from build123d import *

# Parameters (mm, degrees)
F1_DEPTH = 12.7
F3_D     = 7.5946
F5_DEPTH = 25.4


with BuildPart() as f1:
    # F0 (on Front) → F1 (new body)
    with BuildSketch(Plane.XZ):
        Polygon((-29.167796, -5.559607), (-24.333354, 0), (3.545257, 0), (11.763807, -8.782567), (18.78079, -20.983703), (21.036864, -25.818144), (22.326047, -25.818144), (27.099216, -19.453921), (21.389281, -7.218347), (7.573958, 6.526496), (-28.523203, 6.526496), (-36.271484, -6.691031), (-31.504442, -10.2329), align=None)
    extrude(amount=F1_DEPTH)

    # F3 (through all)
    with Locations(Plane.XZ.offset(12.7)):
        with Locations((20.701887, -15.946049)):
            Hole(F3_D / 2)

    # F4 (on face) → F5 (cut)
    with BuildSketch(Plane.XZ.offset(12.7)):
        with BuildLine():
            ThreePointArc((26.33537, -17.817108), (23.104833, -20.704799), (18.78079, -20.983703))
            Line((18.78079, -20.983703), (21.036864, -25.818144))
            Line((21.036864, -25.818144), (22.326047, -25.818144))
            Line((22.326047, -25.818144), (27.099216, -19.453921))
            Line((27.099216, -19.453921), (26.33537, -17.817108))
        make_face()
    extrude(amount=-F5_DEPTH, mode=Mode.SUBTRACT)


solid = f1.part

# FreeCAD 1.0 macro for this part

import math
import FreeCAD as App
import Part
import Sketcher

V = App.Vector
Q = App.Units.Quantity

doc = App.newDocument("Part")
params = doc.addObject("Spreadsheet::Sheet", "Params")
for row, (alias, value) in enumerate([
    ("pad1_length", "0.5 in"),
    ("sketch2_diameter", "0.299 in"),
    ("hole_diameter", "0.299 in"),
    ("pocket1_length", "1 in"),
], start=1):
    params.set(f"A{row}", alias)
    params.set(f"B{row}", "=" + value)
    params.setAlias(f"B{row}", alias)

body = doc.addObject("PartDesign::Body", "Body")

# Sketch on XZ plane
sketch1 = body.newObject("Sketcher::SketchObject", "Sketch")
sketch1.AttachmentSupport = (doc.getObject("XZ_Plane"), [""])
sketch1.MapMode = "FlatFace"
sketch1.addGeometry([
    Part.LineSegment(V(-29.167796, -5.559607, 0), V(-24.333354, 0, 0)),  # 0
    Part.LineSegment(V(-24.333354, 0, 0), V(3.545257, 0, 0)),  # 1
    Part.LineSegment(V(3.545257, 0, 0), V(11.763807, -8.782567, 0)),  # 2
    Part.LineSegment(V(11.763807, -8.782567, 0), V(18.78079, -20.983703, 0)),  # 3
    Part.LineSegment(V(18.78079, -20.983703, 0), V(21.036864, -25.818144, 0)),  # 4
    Part.LineSegment(V(21.036864, -25.818144, 0), V(22.326047, -25.818144, 0)),  # 5
    Part.LineSegment(V(22.326047, -25.818144, 0), V(27.099216, -19.453921, 0)),  # 6
    Part.LineSegment(V(27.099216, -19.453921, 0), V(21.389281, -7.218347, 0)),  # 7
    Part.LineSegment(V(21.389281, -7.218347, 0), V(7.573958, 6.526496, 0)),  # 8
    Part.LineSegment(V(7.573958, 6.526496, 0), V(-28.523203, 6.526496, 0)),  # 9
    Part.LineSegment(V(-28.523203, 6.526496, 0), V(-36.271484, -6.691031, 0)),  # 10
    Part.LineSegment(V(-36.271484, -6.691031, 0), V(-31.504442, -10.2329, 0)),  # 11
    Part.LineSegment(V(-31.504442, -10.2329, 0), V(-29.167796, -5.559607, 0)),  # 12
], False)
sketch1.addConstraint([
    Sketcher.Constraint("Coincident", 0, 2, 1, 1),
    Sketcher.Constraint("Coincident", 1, 2, 2, 1),
    Sketcher.Constraint("Coincident", 2, 2, 3, 1),
    Sketcher.Constraint("Coincident", 3, 2, 4, 1),
    Sketcher.Constraint("Coincident", 4, 2, 5, 1),
    Sketcher.Constraint("Coincident", 5, 2, 6, 1),
    Sketcher.Constraint("Coincident", 6, 2, 7, 1),
    Sketcher.Constraint("Coincident", 7, 2, 8, 1),
    Sketcher.Constraint("Coincident", 8, 2, 9, 1),
    Sketcher.Constraint("Coincident", 9, 2, 10, 1),
    Sketcher.Constraint("Coincident", 10, 2, 11, 1),
    Sketcher.Constraint("Coincident", 11, 2, 12, 1),
    Sketcher.Constraint("Coincident", 12, 2, 0, 1),
    Sketcher.Constraint("Horizontal", 1),
    Sketcher.Constraint("Horizontal", 5),
    Sketcher.Constraint("Horizontal", 9),
    Sketcher.Constraint("PointOnObject", 0, 2, -1),
    Sketcher.Constraint("Parallel", 4, 7),
    Sketcher.Constraint("Distance", 6, Q("0.3132 in")),
    Sketcher.Constraint("Distance", 12, Q("5.2249 mm")),
    Sketcher.Constraint("DistanceX", 1, 1, 1, 2, Q("27.878611 mm")),
    Sketcher.Constraint("DistanceX", 9, 2, 9, 1, Q("36.097161 mm")),
    Sketcher.Constraint("DistanceY", 11, 2, -1, 1, Q("10.2329 mm")),
    Sketcher.Constraint("DistanceX", 0, 2, 5, 2, Q("46.659401 mm")),
    Sketcher.Constraint("DistanceX", 1, 2, 8, 2, Q("4.028701 mm")),
    Sketcher.Constraint("DistanceY", 3, 2, 8, 2, Q("27.510199 mm")),
    Sketcher.Constraint("DistanceX", 11, 2, 1, 2, Q("35.049699 mm")),
    Sketcher.Constraint("Distance", 0, Q("7.367568 mm")),
    Sketcher.Constraint("Distance", 2, Q("12.028219 mm")),
    Sketcher.Constraint("Distance", 4, Q("5.33495 mm")),
    Sketcher.Constraint("Distance", 7, Q("13.502319 mm")),
    Sketcher.Constraint("Distance", 10, Q("15.321191 mm")),
    Sketcher.Constraint("DistanceX", 5, 1, 5, 2, Q("1.289183 mm")),
    Sketcher.Constraint("DistanceX", -1, 1, 3, 2, Q("18.78079 mm")),
    Sketcher.Constraint("DistanceY", 6, 2, -1, 1, Q("19.453921 mm")),
    Sketcher.Constraint("DistanceX", -1, 1, 7, 2, Q("21.389281 mm")),
    Sketcher.Constraint("DistanceX", -1, 1, 8, 2, Q("7.573958 mm")),
    Sketcher.Constraint("DistanceY", 10, 2, -1, 1, Q("6.691031 mm")),
    Sketcher.Constraint("DistanceX", 1, 2, 2, 2, Q("8.21855 mm")),
])
pad1 = body.newObject("PartDesign::Pad", "Pad")
pad1.Profile = sketch1
pad1.setExpression("Length", "Params.pad1_length")

# Sketch on XZ plane
sketch2 = body.newObject("Sketcher::SketchObject", "Sketch001")
sketch2.AttachmentSupport = (doc.getObject("XZ_Plane"), [""])
sketch2.MapMode = "FlatFace"
sketch2.AttachmentOffset = App.Placement(V(0, 0, 0.5 * 25.4), App.Rotation())
sketch2.addGeometry(Part.Circle(V(20.701887, -15.946049, 0), V(0, 0, 1), 3.7973), False)
sketch2.addConstraint([
    Sketcher.Constraint("Diameter", 0, Q("0.299 in")),
    Sketcher.Constraint("DistanceY", 0, 3, -1, 1, Q("15.946049 mm")),
    Sketcher.Constraint("DistanceX", -1, 1, 0, 3, Q("20.701887 mm")),
])
sketch2.setExpression("Constraints[0]", "Params.sketch2_diameter")
doc.recompute()
hole = body.newObject("PartDesign::Hole", "Hole")
hole.Profile = sketch2
hole.ThreadType = "None"
hole.setExpression("Diameter", "Params.hole_diameter")
hole.DepthType = "ThroughAll"

# Sketch on XZ plane
sketch3 = body.newObject("Sketcher::SketchObject", "Sketch002")
sketch3.AttachmentSupport = (doc.getObject("XZ_Plane"), [""])
sketch3.MapMode = "FlatFace"
sketch3.AttachmentOffset = App.Placement(V(0, 0, 0.5 * 25.4), App.Rotation())
sketch3.addGeometry([
    Part.ArcOfCircle(Part.Circle(V(20.538984, -14.583425, 0), V(0, 0, 1), 6.637379), math.radians(-105.36058), math.radians(-29.156234)),  # 0
    Part.LineSegment(V(18.78079, -20.983703, 0), V(21.036864, -25.818144, 0)),  # 1
    Part.LineSegment(V(21.036864, -25.818144, 0), V(22.326047, -25.818144, 0)),  # 2
    Part.LineSegment(V(22.326047, -25.818144, 0), V(27.099216, -19.453921, 0)),  # 3
    Part.LineSegment(V(27.099216, -19.453921, 0), V(26.33537, -17.817108, 0)),  # 4
], False)
sketch3.addConstraint([
    Sketcher.Constraint("Coincident", 0, 1, 1, 1),
    Sketcher.Constraint("Coincident", 1, 2, 2, 1),
    Sketcher.Constraint("Coincident", 2, 2, 3, 1),
    Sketcher.Constraint("Coincident", 3, 2, 4, 1),
    Sketcher.Constraint("Coincident", 4, 2, 0, 2),
    Sketcher.Constraint("Horizontal", 2),
    Sketcher.Constraint("Parallel", 1, 4),
    Sketcher.Constraint("Radius", 0, Q("6.637379 mm")),
    Sketcher.Constraint("Distance", 3, Q("0.3132 in")),
    Sketcher.Constraint("Distance", 1, Q("5.33495 mm")),
    Sketcher.Constraint("Distance", 4, Q("1.806272 mm")),
    Sketcher.Constraint("DistanceX", 2, 1, 2, 2, Q("1.289183 mm")),
    Sketcher.Constraint("DistanceX", -1, 1, 0, 1, Q("18.78079 mm")),
    Sketcher.Constraint("DistanceY", 3, 2, -1, 1, Q("19.453921 mm")),
    Sketcher.Constraint("DistanceX", -1, 1, 4, 2, Q("26.33537 mm")),
    Sketcher.Constraint("DistanceY", 4, 2, -1, 1, Q("17.817108 mm")),
])
pocket1 = body.newObject("PartDesign::Pocket", "Pocket")
pocket1.Profile = sketch3
pocket1.setExpression("Length", "Params.pocket1_length")

doc.recompute()
